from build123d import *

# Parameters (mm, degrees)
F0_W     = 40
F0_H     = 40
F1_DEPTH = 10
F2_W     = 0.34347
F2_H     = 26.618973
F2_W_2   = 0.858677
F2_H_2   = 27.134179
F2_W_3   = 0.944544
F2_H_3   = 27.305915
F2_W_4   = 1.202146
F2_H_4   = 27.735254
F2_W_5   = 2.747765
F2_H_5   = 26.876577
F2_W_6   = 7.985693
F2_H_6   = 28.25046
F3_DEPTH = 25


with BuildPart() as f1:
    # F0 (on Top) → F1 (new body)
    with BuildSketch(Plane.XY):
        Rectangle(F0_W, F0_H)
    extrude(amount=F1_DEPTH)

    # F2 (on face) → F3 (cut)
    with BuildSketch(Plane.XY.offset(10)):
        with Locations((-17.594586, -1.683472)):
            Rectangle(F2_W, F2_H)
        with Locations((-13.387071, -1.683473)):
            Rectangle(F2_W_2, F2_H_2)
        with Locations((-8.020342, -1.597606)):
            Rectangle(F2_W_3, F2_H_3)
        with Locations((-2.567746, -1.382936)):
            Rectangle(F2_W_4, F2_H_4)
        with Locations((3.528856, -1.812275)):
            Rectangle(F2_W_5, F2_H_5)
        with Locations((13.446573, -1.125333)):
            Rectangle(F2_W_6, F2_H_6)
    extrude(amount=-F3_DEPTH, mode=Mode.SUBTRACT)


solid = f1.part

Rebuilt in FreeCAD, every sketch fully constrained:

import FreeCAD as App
import Part
import Sketcher
from FreeCAD import Vector
Q = App.Units.Quantity


def add_polygon(sketch, points):
    """Adds a closed chain of lines whose ends are joined by coincident constraints."""
    first, n = sketch.GeometryCount, len(points)
    for a, b in zip(points, points[1:] + points[:1]):
        sketch.addGeometry(Part.LineSegment(App.Vector(*a, 0), App.Vector(*b, 0)), False)
    for i in range(n):
        sketch.addConstraint(Sketcher.Constraint("Coincident", first + i, 2, first + (i + 1) % n, 1))

doc = App.newDocument("Part")
body = doc.addObject("PartDesign::Body", "Body")

# Sketch on XY plane
sketch1 = body.newObject("Sketcher::SketchObject", "Sketch")
sketch1.AttachmentSupport = (doc.getObject("XY_Plane"), [""])
sketch1.MapMode = "FlatFace"
add_polygon(sketch1, [(-20, 20), (-20, -20), (20, -20), (20, 20)])  # lines 0-3
sketch1.addConstraint(Sketcher.Constraint("Vertical", 0))
sketch1.addConstraint(Sketcher.Constraint("Horizontal", 1))
sketch1.addConstraint(Sketcher.Constraint("Vertical", 2))
sketch1.addConstraint(Sketcher.Constraint("Horizontal", 3))
sketch1.addConstraint(Sketcher.Constraint("Symmetric", 0, 2, 2, 2, -1, 1))
sketch1.addConstraint(Sketcher.Constraint("Equal", 3, 0))
sketch1.addConstraint(Sketcher.Constraint("DistanceX", 1, 1, 1, 2, Q("40 mm")))
pad1 = body.newObject("PartDesign::Pad", "Pad")
pad1.Profile = sketch1
pad1.Length = 10

# Sketch on XY plane
sketch2 = body.newObject("Sketcher::SketchObject", "Sketch001")
sketch2.AttachmentSupport = (doc.getObject("XY_Plane"), [""])
sketch2.MapMode = "FlatFace"
sketch2.AttachmentOffset = App.Placement(Vector(0, 0, 10), App.Rotation())
add_polygon(sketch2, [(-17.77, 11.63), (-17.77, -14.99), (-17.42, -14.99), (-17.42, 11.63)])  # lines 0-3
add_polygon(sketch2, [(-13.82, 11.88), (-13.82, -15.25), (-12.96, -15.25), (-12.96, 11.88)])  # lines 4-7
add_polygon(sketch2, [(-8.49, 12.06), (-8.49, -15.25), (-7.55, -15.25), (-7.55, 12.06)])  # lines 8-11
add_polygon(sketch2, [(-3.17, 12.48), (-3.17, -15.25), (-1.97, -15.25), (-1.97, 12.48)])  # lines 12-15
add_polygon(sketch2, [(2.15, 11.63), (2.15, -15.25), (4.9, -15.25), (4.9, 11.63)])  # lines 16-19
add_polygon(sketch2, [(9.45, 13), (9.45, -15.25), (17.44, -15.25), (17.44, 13)])  # lines 20-23
sketch2.addConstraint(Sketcher.Constraint("Vertical", 0))
sketch2.addConstraint(Sketcher.Constraint("Horizontal", 1))
sketch2.addConstraint(Sketcher.Constraint("Vertical", 2))
sketch2.addConstraint(Sketcher.Constraint("Horizontal", 3))
sketch2.addConstraint(Sketcher.Constraint("Vertical", 4))
sketch2.addConstraint(Sketcher.Constraint("Horizontal", 5))
sketch2.addConstraint(Sketcher.Constraint("Vertical", 6))
sketch2.addConstraint(Sketcher.Constraint("Horizontal", 7))
sketch2.addConstraint(Sketcher.Constraint("Vertical", 8))
sketch2.addConstraint(Sketcher.Constraint("Horizontal", 9))
sketch2.addConstraint(Sketcher.Constraint("Vertical", 10))
sketch2.addConstraint(Sketcher.Constraint("Horizontal", 11))
sketch2.addConstraint(Sketcher.Constraint("Vertical", 12))
sketch2.addConstraint(Sketcher.Constraint("Horizontal", 13))
sketch2.addConstraint(Sketcher.Constraint("Vertical", 14))
sketch2.addConstraint(Sketcher.Constraint("Horizontal", 15))
sketch2.addConstraint(Sketcher.Constraint("Vertical", 16))
sketch2.addConstraint(Sketcher.Constraint("Horizontal", 17))
sketch2.addConstraint(Sketcher.Constraint("Vertical", 18))
sketch2.addConstraint(Sketcher.Constraint("Horizontal", 19))
sketch2.addConstraint(Sketcher.Constraint("Vertical", 20))
sketch2.addConstraint(Sketcher.Constraint("Horizontal", 21))
sketch2.addConstraint(Sketcher.Constraint("Vertical", 22))
sketch2.addConstraint(Sketcher.Constraint("Horizontal", 23))
sketch2.addConstraint(Sketcher.Constraint("Horizontal", 5, 2, 8, 2))
sketch2.addConstraint(Sketcher.Constraint("Horizontal", 9, 2, 12, 2))
sketch2.addConstraint(Sketcher.Constraint("Horizontal", 13, 2, 16, 2))
sketch2.addConstraint(Sketcher.Constraint("Horizontal", 3, 2, 18, 2))
sketch2.addConstraint(Sketcher.Constraint("Horizontal", 17, 2, 20, 2))
sketch2.addConstraint(Sketcher.Constraint("DistanceX", 1, 1, 1, 2, Q("0.34347 mm")))
sketch2.addConstraint(Sketcher.Constraint("DistanceY", 4, 2, 4, 1, Q("27.134179 mm")))
sketch2.addConstraint(Sketcher.Constraint("DistanceY", 20, 2, 20, 1, Q("28.25046 mm")))
sketch2.addConstraint(Sketcher.Constraint("DistanceX", 13, 2, 20, 2, Q("11.4204 mm")))
sketch2.addConstraint(Sketcher.Constraint("DistanceX", 5, 1, 5, 2, Q("0.858677 mm")))
sketch2.addConstraint(Sketcher.Constraint("DistanceX", 9, 1, 9, 2, Q("0.944544 mm")))
sketch2.addConstraint(Sketcher.Constraint("DistanceX", 13, 1, 13, 2, Q("1.202146 mm")))
sketch2.addConstraint(Sketcher.Constraint("DistanceX", 17, 1, 17, 2, Q("2.747765 mm")))
sketch2.addConstraint(Sketcher.Constraint("DistanceX", 21, 1, 21, 2, Q("7.985693 mm")))
sketch2.addConstraint(Sketcher.Constraint("DistanceY", 0, 2, 0, 1, Q("26.618973 mm")))
sketch2.addConstraint(Sketcher.Constraint("DistanceY", 8, 2, 8, 1, Q("27.305915 mm")))
sketch2.addConstraint(Sketcher.Constraint("DistanceY", 12, 2, 12, 1, Q("27.735254 mm")))
sketch2.addConstraint(Sketcher.Constraint("DistanceY", 16, 2, 16, 1, Q("26.876577 mm")))
sketch2.addConstraint(Sketcher.Constraint("DistanceX", 0, 2, -1, 1, Q("17.766321 mm")))
sketch2.addConstraint(Sketcher.Constraint("DistanceY", 0, 2, -1, 1, Q("14.992959 mm")))
sketch2.addConstraint(Sketcher.Constraint("DistanceX", 4, 2, -1, 1, Q("13.81641 mm")))
sketch2.addConstraint(Sketcher.Constraint("DistanceX", 9, 2, -1, 1, Q("7.54807 mm")))
sketch2.addConstraint(Sketcher.Constraint("DistanceX", 12, 2, -1, 1, Q("3.168819 mm")))
sketch2.addConstraint(Sketcher.Constraint("DistanceX", -1, 1, 17, 2, Q("4.902738 mm")))
pocket1 = body.newObject("PartDesign::Pocket", "Pocket")
pocket1.Profile = sketch2
pocket1.Length = 25

doc.recompute()
